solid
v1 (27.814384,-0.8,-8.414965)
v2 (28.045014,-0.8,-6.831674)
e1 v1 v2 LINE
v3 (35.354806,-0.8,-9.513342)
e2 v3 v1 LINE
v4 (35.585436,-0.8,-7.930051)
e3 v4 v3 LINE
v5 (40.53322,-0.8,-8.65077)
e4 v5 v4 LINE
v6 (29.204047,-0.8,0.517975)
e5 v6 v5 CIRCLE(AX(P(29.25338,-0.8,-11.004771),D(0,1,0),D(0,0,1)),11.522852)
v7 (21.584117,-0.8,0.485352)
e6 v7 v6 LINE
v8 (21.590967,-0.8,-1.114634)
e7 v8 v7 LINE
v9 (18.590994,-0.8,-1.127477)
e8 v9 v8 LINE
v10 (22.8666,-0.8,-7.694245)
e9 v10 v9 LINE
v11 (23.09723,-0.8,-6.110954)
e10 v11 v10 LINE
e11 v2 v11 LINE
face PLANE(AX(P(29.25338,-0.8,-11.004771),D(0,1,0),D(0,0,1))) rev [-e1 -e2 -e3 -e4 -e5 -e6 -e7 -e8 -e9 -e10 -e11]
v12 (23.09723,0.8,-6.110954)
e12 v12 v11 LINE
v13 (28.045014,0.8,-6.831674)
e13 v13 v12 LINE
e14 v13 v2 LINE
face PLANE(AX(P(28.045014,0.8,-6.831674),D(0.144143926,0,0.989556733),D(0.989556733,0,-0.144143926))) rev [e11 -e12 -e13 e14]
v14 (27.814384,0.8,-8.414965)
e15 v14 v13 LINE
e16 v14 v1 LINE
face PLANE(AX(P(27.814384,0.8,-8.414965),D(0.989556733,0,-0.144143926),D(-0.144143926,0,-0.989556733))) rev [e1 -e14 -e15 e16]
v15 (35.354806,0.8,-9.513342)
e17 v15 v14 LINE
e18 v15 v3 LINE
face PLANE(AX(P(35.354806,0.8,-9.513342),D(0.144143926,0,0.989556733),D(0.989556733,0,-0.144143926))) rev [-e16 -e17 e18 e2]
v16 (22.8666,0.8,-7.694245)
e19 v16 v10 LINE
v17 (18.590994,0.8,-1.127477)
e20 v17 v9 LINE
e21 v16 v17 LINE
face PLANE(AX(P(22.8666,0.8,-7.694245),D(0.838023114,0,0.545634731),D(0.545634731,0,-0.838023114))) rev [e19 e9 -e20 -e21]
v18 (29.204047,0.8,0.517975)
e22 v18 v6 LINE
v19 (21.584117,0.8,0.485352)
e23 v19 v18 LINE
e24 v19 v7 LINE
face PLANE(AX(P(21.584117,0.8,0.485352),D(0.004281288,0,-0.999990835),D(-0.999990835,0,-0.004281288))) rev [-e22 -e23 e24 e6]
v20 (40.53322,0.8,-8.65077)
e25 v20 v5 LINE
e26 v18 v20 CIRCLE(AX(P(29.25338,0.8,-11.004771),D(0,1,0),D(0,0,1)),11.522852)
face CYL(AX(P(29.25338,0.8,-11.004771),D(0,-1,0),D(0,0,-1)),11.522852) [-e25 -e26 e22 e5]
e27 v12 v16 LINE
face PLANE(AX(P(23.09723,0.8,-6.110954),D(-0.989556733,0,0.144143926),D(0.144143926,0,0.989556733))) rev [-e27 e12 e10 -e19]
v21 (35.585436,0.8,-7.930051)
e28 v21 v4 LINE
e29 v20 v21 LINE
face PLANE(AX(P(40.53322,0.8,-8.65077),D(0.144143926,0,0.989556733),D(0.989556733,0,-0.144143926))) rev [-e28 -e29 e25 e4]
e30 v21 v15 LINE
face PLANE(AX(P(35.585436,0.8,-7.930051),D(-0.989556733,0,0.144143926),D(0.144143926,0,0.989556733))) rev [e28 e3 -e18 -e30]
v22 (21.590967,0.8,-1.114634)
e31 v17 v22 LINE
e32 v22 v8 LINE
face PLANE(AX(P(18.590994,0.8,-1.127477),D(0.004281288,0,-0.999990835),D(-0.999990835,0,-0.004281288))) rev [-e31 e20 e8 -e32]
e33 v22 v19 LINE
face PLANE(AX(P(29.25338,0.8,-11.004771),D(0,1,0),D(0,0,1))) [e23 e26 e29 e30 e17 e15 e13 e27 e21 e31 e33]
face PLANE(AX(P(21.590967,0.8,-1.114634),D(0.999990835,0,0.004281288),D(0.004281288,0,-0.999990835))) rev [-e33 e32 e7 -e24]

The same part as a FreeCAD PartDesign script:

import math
import FreeCAD as App
import Part
import Sketcher

doc = App.newDocument("Part")
body = doc.addObject("PartDesign::Body", "Body")

sketch1 = body.newObject("Sketcher::SketchObject", "Sketch")
sketch1.AttachmentSupport = (doc.getObject("XZ_Plane"), [""])
sketch1.MapMode = "FlatFace"
sketch1.addGeometry([
    Part.LineSegment(App.Vector(21.6, -1.1, 0), App.Vector(21.6, 0.5, 0)),
    Part.LineSegment(App.Vector(21.6, 0.5, 0), App.Vector(29.2, 0.5, 0)),
    Part.ArcOfCircle(Part.Circle(App.Vector(29.3, -11, 0), App.Vector(0, 0, 1), 11.5), math.radians(12), math.radians(90)),
    Part.LineSegment(App.Vector(40.5, -8.7, 0), App.Vector(35.6, -7.9, 0)),
    Part.LineSegment(App.Vector(35.6, -7.9, 0), App.Vector(35.4, -9.5, 0)),
    Part.LineSegment(App.Vector(35.4, -9.5, 0), App.Vector(27.8, -8.4, 0)),
    Part.LineSegment(App.Vector(27.8, -8.4, 0), App.Vector(28, -6.8, 0)),
    Part.LineSegment(App.Vector(28, -6.8, 0), App.Vector(23.1, -6.1, 0)),
    Part.LineSegment(App.Vector(23.1, -6.1, 0), App.Vector(22.9, -7.7, 0)),
    Part.LineSegment(App.Vector(22.9, -7.7, 0), App.Vector(18.6, -1.1, 0)),
    Part.LineSegment(App.Vector(18.6, -1.1, 0), App.Vector(21.6, -1.1, 0)),
], False)
sketch1.addConstraint([
    Sketcher.Constraint("Coincident", 0, 2, 1, 1),
    Sketcher.Constraint("Tangent", 1, 2, 2, 2),
    Sketcher.Constraint("Coincident", 2, 1, 3, 1),
    Sketcher.Constraint("Coincident", 3, 2, 4, 1),
    Sketcher.Constraint("Coincident", 4, 2, 5, 1),
    Sketcher.Constraint("Coincident", 5, 2, 6, 1),
    Sketcher.Constraint("Coincident", 6, 2, 7, 1),
    Sketcher.Constraint("Coincident", 7, 2, 8, 1),
    Sketcher.Constraint("Coincident", 8, 2, 9, 1),
    Sketcher.Constraint("Coincident", 9, 2, 10, 1),
    Sketcher.Constraint("Coincident", 10, 2, 0, 1),
    Sketcher.Constraint("Perpendicular", 0, 1),
    Sketcher.Constraint("Perpendicular", 3, 4),
    Sketcher.Constraint("Perpendicular", 4, 5),
    Sketcher.Constraint("Perpendicular", 5, 6),
    Sketcher.Constraint("Perpendicular", 6, 7),
    Sketcher.Constraint("Perpendicular", 7, 8),
    Sketcher.Constraint("Parallel", 1, 10),
    Sketcher.Constraint("Equal", 0, 4),
    Sketcher.Constraint("Equal", 1, 5),
    Sketcher.Constraint("Equal", 4, 6),
    Sketcher.Constraint("Equal", 3, 7),
    Sketcher.Constraint("Equal", 6, 8),
    Sketcher.Constraint("Distance", 3, 5.0),
    Sketcher.Constraint("Distance", 10, 3.0),
    Sketcher.Constraint("Distance", 0, 1.6),
    Sketcher.Constraint("Distance", 1, 7.62),
    Sketcher.Constraint("Radius", 2, 11.522852),
    Sketcher.Constraint("DistanceY", 2, 3, 2, 1, 2.354001),
    Sketcher.Constraint("DistanceX", -1, 1, 8, 2, 22.8666),
    Sketcher.Constraint("DistanceX", -1, 1, 2, 3, 29.25338),
    Sketcher.Constraint("DistanceY", 2, 3, -1, 1, 11.004771),
    Sketcher.Constraint("DistanceY", -1, 1, 0, 2, 0.485352),
])
pad1 = body.newObject("PartDesign::Pad", "Pad")
pad1.Profile = sketch1
pad1.Length = 1.6
pad1.Midplane = True

doc.recompute()
